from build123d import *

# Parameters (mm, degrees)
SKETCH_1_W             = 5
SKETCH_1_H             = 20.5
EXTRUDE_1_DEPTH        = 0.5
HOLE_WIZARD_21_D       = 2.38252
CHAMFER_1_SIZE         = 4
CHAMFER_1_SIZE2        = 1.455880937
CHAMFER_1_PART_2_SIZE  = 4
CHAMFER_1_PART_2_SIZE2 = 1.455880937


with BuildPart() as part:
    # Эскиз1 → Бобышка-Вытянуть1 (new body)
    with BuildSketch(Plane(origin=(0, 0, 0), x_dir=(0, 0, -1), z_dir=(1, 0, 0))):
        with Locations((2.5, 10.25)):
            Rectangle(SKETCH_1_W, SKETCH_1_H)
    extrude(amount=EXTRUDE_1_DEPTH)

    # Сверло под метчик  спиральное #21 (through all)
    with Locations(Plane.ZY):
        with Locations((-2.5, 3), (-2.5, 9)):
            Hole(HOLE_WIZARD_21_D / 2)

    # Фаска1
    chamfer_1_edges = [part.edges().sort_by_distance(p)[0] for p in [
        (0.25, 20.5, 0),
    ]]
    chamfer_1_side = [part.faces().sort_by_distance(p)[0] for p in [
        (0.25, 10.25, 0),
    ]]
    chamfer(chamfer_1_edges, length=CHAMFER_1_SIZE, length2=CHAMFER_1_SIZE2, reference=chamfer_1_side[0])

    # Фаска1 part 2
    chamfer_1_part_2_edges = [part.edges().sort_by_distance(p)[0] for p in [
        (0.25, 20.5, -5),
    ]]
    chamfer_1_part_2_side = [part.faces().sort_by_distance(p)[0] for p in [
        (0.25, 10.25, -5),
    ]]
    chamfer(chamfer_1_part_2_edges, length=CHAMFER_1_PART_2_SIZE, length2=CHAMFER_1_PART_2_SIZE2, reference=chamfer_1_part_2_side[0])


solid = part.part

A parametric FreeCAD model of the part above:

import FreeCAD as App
import Part
import Sketcher
from FreeCAD import Vector
Q = App.Units.Quantity


def edges_at(feature, points):
    """Names of the edges that pass closest to the given points."""
    edges = feature.Shape.Edges
    near = lambda p: min(range(len(edges)), key=lambda i: edges[i].distToShape(Part.Vertex(*p))[0])
    return sorted({f"Edge{near(p) + 1}" for p in points})

doc = App.newDocument("Part")
body = doc.addObject("PartDesign::Body", "Body")

# Sketch on YZ plane
sketch1 = body.newObject("Sketcher::SketchObject", "Sketch")
sketch1.AttachmentSupport = (doc.getObject("YZ_Plane"), [""])
sketch1.MapMode = "FlatFace"
sketch1.addGeometry([
    Part.LineSegment(Vector(20, 0, 0), Vector(0, 0, 0)),
    Part.LineSegment(Vector(0, 0, 0), Vector(0, -5, 0)),
    Part.LineSegment(Vector(0, -5, 0), Vector(20, -5, 0)),
    Part.LineSegment(Vector(20, -5, 0), Vector(20, 0, 0)),
], False)
sketch1.addConstraint([
    Sketcher.Constraint("Coincident", 0, 2, 1, 1),
    Sketcher.Constraint("Coincident", 1, 2, 2, 1),
    Sketcher.Constraint("Coincident", 2, 2, 3, 1),
    Sketcher.Constraint("Coincident", 3, 2, 0, 1),
    Sketcher.Constraint("Horizontal", 0),
    Sketcher.Constraint("Vertical", 1),
    Sketcher.Constraint("Horizontal", 2),
    Sketcher.Constraint("Vertical", 3),
    Sketcher.Constraint("Coincident", 0, 2, -1, 1),
    Sketcher.Constraint("DistanceY", 1, 2, 1, 1, Q("5 mm")),
    Sketcher.Constraint("DistanceX", 0, 2, 0, 1, Q("20.5 mm")),
])
pad1 = body.newObject("PartDesign::Pad", "Pad")
pad1.Profile = sketch1
pad1.Length = 0.5

# Sketch on YZ plane
sketch2 = body.newObject("Sketcher::SketchObject", "Sketch001")
sketch2.AttachmentSupport = (doc.getObject("YZ_Plane"), [""])
sketch2.MapMode = "FlatFace"
sketch2.addGeometry([
    Part.Circle(Vector(3, -2.5, 0), Vector(0, 0, 1), 1.2),
    Part.Circle(Vector(9, -2.5, 0), Vector(0, 0, 1), 1.2),
], False)
sketch2.addConstraint([
    Sketcher.Constraint("Equal", 0, 1),
    Sketcher.Constraint("Horizontal", 0, 3, 1, 3),
    Sketcher.Constraint("DistanceX", -1, 1, 0, 3, Q("3 mm")),
    Sketcher.Constraint("DistanceX", -1, 1, 1, 3, Q("9 mm")),
    Sketcher.Constraint("DistanceY", 0, 3, -1, 1, Q("2.5 mm")),
    Sketcher.Constraint("Diameter", 0, Q("2.38252 mm")),
])
doc.recompute()
hole = body.newObject("PartDesign::Hole", "Hole")
hole.Profile = sketch2
hole.ThreadType = "None"
hole.Diameter = 2.38252
hole.DepthType = "ThroughAll"
hole.Reversed = True
doc.recompute()

chamfer = body.newObject("PartDesign::Chamfer", "Chamfer")
chamfer.Base = (hole, edges_at(hole, [(0.25, 20.5, 0)]))
chamfer.ChamferType = "Two distances"
chamfer.Size = 4
chamfer.Size2 = 1.455881
doc.recompute()

chamfer2 = body.newObject("PartDesign::Chamfer", "Chamfer001")
chamfer2.Base = (chamfer, edges_at(chamfer, [(0.25, 20.5, -5)]))
chamfer2.ChamferType = "Two distances"
chamfer2.Size = 4
chamfer2.Size2 = 1.455881
chamfer2.FlipDirection = True

doc.recompute()
